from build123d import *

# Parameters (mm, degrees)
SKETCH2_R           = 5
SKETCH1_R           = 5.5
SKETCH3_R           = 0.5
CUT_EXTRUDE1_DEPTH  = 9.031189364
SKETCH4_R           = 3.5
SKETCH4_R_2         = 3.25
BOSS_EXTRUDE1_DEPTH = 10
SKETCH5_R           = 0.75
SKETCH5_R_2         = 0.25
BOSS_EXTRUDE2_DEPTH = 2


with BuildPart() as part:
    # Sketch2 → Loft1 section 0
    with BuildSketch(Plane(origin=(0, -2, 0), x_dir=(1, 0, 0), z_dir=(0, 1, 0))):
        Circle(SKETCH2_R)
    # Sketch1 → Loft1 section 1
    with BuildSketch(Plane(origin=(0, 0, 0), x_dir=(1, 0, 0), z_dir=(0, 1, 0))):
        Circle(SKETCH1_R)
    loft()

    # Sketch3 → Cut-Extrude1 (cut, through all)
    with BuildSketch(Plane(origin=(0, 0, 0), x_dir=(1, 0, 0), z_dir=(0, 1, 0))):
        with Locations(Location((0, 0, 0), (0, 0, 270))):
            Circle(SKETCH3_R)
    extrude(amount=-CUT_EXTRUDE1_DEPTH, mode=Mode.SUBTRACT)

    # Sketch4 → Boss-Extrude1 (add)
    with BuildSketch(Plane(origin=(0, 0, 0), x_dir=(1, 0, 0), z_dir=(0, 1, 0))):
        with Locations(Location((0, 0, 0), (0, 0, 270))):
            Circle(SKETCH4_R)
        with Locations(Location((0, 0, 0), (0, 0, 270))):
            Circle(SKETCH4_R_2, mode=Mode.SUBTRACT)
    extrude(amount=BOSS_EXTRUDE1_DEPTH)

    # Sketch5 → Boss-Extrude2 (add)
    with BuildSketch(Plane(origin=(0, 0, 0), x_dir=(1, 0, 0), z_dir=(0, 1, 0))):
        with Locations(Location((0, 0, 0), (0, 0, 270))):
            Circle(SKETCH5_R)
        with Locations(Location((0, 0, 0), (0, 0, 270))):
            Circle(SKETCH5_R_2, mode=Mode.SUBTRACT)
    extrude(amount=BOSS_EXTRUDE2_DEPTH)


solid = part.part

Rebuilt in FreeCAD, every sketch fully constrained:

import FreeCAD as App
import Part
import Sketcher
Q = App.Units.Quantity

doc = App.newDocument("Part")
params = doc.addObject("Spreadsheet::Sheet", "Params")
for row, (alias, value) in enumerate([
    ("sketch1_diameter", "10 mm"),
    ("sketch2_diameter", "11 mm"),
    ("sketch3_diameter", "1 mm"),
    ("sketch4_diameter", "7 mm"),
    ("sketch4_diameter2", "6.5 mm"),
    ("pad1_length", "10 mm"),
    ("sketch5_diameter", "1.5 mm"),
    ("sketch5_diameter2", "0.5 mm"),
    ("pad2_length", "2 mm"),
], start=1):
    params.set(f"A{row}", alias)
    params.set(f"B{row}", "=" + value)
    params.setAlias(f"B{row}", alias)

body = doc.addObject("PartDesign::Body", "Body")

# Sketch on XZ plane
sketch1 = body.newObject("Sketcher::SketchObject", "Sketch")
sketch1.AttachmentSupport = (doc.getObject("XZ_Plane"), [""])
sketch1.MapMode = "FlatFace"
sketch1.AttachmentOffset = App.Placement(App.Vector(0, 0, 2), App.Rotation())
sketch1.addGeometry(Part.Circle(App.Vector(0, 0, 0), App.Vector(0, 0, 1), 5), False)
sketch1.addConstraint([
    Sketcher.Constraint("Coincident", 0, 3, -1, 1),
    Sketcher.Constraint("Diameter", 0, Q("10 mm")),
])
sketch1.setExpression("Constraints[1]", "Params.sketch1_diameter")

# Sketch on XZ plane
sketch2 = body.newObject("Sketcher::SketchObject", "Sketch001")
sketch2.AttachmentSupport = (doc.getObject("XZ_Plane"), [""])
sketch2.MapMode = "FlatFace"
sketch2.addGeometry(Part.Circle(App.Vector(0, 0, 0), App.Vector(0, 0, 1), 6), False)
sketch2.addConstraint([
    Sketcher.Constraint("Coincident", 0, 3, -1, 1),
    Sketcher.Constraint("Diameter", 0, Q("11 mm")),
])
sketch2.setExpression("Constraints[1]", "Params.sketch2_diameter")

additiveloft = body.newObject("PartDesign::AdditiveLoft", "AdditiveLoft")
additiveloft.Profile = sketch1
additiveloft.Sections = [sketch2]

# Sketch on XZ plane
sketch3 = body.newObject("Sketcher::SketchObject", "Sketch002")
sketch3.AttachmentSupport = (doc.getObject("XZ_Plane"), [""])
sketch3.MapMode = "FlatFace"
sketch3.addGeometry(Part.Circle(App.Vector(0, 0, 0), App.Vector(0, 0, 1), 0.5), False)
sketch3.addConstraint([
    Sketcher.Constraint("Coincident", 0, 3, -1, 1),
    Sketcher.Constraint("Diameter", 0, Q("1 mm")),
])
sketch3.setExpression("Constraints[1]", "Params.sketch3_diameter")
pocket1 = body.newObject("PartDesign::Pocket", "Pocket")
pocket1.Profile = sketch3
pocket1.Type = "ThroughAll"
pocket1.Reversed = True

# Sketch on XZ plane
sketch4 = body.newObject("Sketcher::SketchObject", "Sketch003")
sketch4.AttachmentSupport = (doc.getObject("XZ_Plane"), [""])
sketch4.MapMode = "FlatFace"
sketch4.addGeometry([
    Part.Circle(App.Vector(0, 0, 0), App.Vector(0, 0, 1), 3.5),
    Part.Circle(App.Vector(0, 0, 0), App.Vector(0, 0, 1), 3.2),
], False)
sketch4.addConstraint([
    Sketcher.Constraint("Coincident", 0, 3, -1, 1),
    Sketcher.Constraint("Coincident", 1, 3, -1, 1),
    Sketcher.Constraint("Diameter", 0, Q("7 mm")),
    Sketcher.Constraint("Diameter", 1, Q("6.5 mm")),
])
sketch4.setExpression("Constraints[2]", "Params.sketch4_diameter")
sketch4.setExpression("Constraints[3]", "Params.sketch4_diameter2")
pad1 = body.newObject("PartDesign::Pad", "Pad")
pad1.Profile = sketch4
pad1.setExpression("Length", "Params.pad1_length")
pad1.Reversed = True

# Sketch on XZ plane
sketch5 = body.newObject("Sketcher::SketchObject", "Sketch004")
sketch5.AttachmentSupport = (doc.getObject("XZ_Plane"), [""])
sketch5.MapMode = "FlatFace"
sketch5.addGeometry([
    Part.Circle(App.Vector(0, 0, 0), App.Vector(0, 0, 1), 0.75),
    Part.Circle(App.Vector(0, 0, 0), App.Vector(0, 0, 1), 0.25),
], False)
sketch5.addConstraint([
    Sketcher.Constraint("Coincident", 0, 3, -1, 1),
    Sketcher.Constraint("Coincident", 1, 3, -1, 1),
    Sketcher.Constraint("Diameter", 0, Q("1.5 mm")),
    Sketcher.Constraint("Diameter", 1, Q("0.5 mm")),
])
sketch5.setExpression("Constraints[2]", "Params.sketch5_diameter")
sketch5.setExpression("Constraints[3]", "Params.sketch5_diameter2")
pad2 = body.newObject("PartDesign::Pad", "Pad001")
pad2.Profile = sketch5
pad2.setExpression("Length", "Params.pad2_length")
pad2.Reversed = True

doc.recompute()
